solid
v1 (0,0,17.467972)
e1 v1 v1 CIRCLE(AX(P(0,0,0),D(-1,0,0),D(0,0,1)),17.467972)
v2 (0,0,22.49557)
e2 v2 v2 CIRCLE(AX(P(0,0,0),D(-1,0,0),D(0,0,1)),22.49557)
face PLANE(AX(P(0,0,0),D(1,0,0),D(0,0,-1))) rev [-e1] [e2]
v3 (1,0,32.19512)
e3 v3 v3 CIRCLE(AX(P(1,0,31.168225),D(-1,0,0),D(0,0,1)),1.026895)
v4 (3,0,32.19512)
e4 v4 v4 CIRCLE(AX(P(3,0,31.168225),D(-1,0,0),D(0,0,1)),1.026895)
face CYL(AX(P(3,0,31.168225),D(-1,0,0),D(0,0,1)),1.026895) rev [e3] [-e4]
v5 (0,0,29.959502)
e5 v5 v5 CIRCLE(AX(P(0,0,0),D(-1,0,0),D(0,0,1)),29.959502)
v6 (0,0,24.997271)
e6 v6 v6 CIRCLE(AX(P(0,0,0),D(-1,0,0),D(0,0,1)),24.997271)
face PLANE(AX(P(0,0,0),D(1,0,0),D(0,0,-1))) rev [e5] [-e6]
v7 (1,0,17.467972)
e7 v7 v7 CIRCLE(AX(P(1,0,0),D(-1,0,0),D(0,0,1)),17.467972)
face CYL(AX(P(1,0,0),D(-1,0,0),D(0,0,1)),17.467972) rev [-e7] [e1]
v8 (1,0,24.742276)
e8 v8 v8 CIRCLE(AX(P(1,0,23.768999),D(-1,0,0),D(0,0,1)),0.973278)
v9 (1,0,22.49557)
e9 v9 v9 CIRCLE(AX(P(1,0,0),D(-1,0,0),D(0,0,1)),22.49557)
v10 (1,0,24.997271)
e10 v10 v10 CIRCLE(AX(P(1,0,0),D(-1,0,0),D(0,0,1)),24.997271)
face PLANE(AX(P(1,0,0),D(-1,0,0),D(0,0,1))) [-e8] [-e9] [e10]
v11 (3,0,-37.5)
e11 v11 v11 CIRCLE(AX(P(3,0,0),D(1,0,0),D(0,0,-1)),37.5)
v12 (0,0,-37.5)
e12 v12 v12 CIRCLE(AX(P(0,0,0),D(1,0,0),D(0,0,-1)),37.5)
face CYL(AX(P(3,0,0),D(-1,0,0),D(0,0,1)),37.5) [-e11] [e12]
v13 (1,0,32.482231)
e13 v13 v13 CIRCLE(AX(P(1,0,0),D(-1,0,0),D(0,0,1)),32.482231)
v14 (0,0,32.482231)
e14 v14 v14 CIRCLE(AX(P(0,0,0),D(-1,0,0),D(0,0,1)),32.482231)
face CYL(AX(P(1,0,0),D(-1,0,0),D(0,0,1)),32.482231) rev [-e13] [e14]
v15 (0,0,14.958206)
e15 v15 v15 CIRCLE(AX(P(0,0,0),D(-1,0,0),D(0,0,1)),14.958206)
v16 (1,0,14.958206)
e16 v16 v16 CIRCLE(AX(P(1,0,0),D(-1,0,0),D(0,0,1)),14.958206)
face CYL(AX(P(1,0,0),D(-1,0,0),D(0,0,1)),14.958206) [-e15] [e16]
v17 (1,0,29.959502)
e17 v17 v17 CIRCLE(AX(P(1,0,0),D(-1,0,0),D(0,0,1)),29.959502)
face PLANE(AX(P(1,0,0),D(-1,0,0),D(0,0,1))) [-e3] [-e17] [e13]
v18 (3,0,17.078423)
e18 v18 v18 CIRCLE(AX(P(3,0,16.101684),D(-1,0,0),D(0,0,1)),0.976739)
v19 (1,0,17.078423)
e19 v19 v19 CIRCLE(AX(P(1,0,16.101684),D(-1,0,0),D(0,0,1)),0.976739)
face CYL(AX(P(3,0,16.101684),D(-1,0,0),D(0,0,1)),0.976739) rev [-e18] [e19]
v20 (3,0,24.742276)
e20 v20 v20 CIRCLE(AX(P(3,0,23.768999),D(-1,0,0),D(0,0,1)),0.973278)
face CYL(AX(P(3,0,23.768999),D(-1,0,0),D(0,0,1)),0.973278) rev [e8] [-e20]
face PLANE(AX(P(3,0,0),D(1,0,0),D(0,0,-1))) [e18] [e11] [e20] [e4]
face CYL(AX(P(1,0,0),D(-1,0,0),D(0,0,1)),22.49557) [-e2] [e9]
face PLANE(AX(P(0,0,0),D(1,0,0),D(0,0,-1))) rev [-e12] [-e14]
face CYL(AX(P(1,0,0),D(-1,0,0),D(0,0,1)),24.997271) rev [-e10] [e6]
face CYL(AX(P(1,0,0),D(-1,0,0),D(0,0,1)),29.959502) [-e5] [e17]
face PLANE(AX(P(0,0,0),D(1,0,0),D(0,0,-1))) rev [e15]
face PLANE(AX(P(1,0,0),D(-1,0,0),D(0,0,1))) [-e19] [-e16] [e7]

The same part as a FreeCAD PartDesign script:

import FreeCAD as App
import Part
import Sketcher

doc = App.newDocument("Part")
params = doc.addObject("Spreadsheet::Sheet", "Params")
for row, (alias, value) in enumerate([
    ("sketch1_diameter", "75 mm"),
    ("pad1_length", "3 mm"),
    ("pocket1_length", "1 mm"),
    ("pocket2_length", "3 mm"),
], start=1):
    params.set(f"A{row}", alias)
    params.set(f"B{row}", "=" + value)
    params.setAlias(f"B{row}", alias)

body = doc.addObject("PartDesign::Body", "Body")

# Sketch on YZ plane
sketch1 = body.newObject("Sketcher::SketchObject", "Sketch")
sketch1.AttachmentSupport = (doc.getObject("YZ_Plane"), [""])
sketch1.MapMode = "FlatFace"
sketch1.addGeometry(Part.Circle(App.Vector(0, 0, 0), App.Vector(0, 0, 1), 37.5), False)
sketch1.addConstraint([
    Sketcher.Constraint("Coincident", 0, 3, -1, 1),
    Sketcher.Constraint("Diameter", 0, 75.0),
])
sketch1.setExpression("Constraints[1]", "Params.sketch1_diameter")
pad1 = body.newObject("PartDesign::Pad", "Pad")
pad1.Profile = sketch1
pad1.setExpression("Length", "Params.pad1_length")

# Sketch on YZ plane
sketch2 = body.newObject("Sketcher::SketchObject", "Sketch001")
sketch2.AttachmentSupport = (doc.getObject("YZ_Plane"), [""])
sketch2.MapMode = "FlatFace"
sketch2.addGeometry([
    Part.Circle(App.Vector(0, 0, 0), App.Vector(0, 0, 1), 32.482231),  # 0
    Part.Circle(App.Vector(0, 0, 0), App.Vector(0, 0, 1), 29.959502),  # 1
    Part.Circle(App.Vector(0, 0, 0), App.Vector(0, 0, 1), 24.997271),  # 2
    Part.Circle(App.Vector(0, 0, 0), App.Vector(0, 0, 1), 22.49557),  # 3
    Part.Circle(App.Vector(0, 0, 0), App.Vector(0, 0, 1), 17.467972),  # 4
    Part.Circle(App.Vector(0, 0, 0), App.Vector(0, 0, 1), 14.958206),  # 5
], False)
sketch2.addConstraint([
    Sketcher.Constraint("Coincident", 0, 3, -1, 1),
    Sketcher.Constraint("Coincident", 1, 3, -1, 1),
    Sketcher.Constraint("Coincident", 2, 3, -1, 1),
    Sketcher.Constraint("Coincident", 3, 3, -1, 1),
    Sketcher.Constraint("Coincident", 4, 3, -1, 1),
    Sketcher.Constraint("Coincident", 5, 3, -1, 1),
    Sketcher.Constraint("Diameter", 0, 64.964461),
    Sketcher.Constraint("Diameter", 2, 49.994541),
    Sketcher.Constraint("Diameter", 3, 44.99114),
    Sketcher.Constraint("Diameter", 1, 59.919004),
    Sketcher.Constraint("Diameter", 4, 34.935944),
    Sketcher.Constraint("Diameter", 5, 29.916412),
])
pocket1 = body.newObject("PartDesign::Pocket", "Pocket")
pocket1.Profile = sketch2
pocket1.setExpression("Length", "Params.pocket1_length")
pocket1.Reversed = True

# Sketch on YZ plane
sketch3 = body.newObject("Sketcher::SketchObject", "Sketch002")
sketch3.AttachmentSupport = (doc.getObject("YZ_Plane"), [""])
sketch3.MapMode = "FlatFace"
sketch3.addGeometry([
    Part.Circle(App.Vector(0, 16.101684, 0), App.Vector(0, 0, 1), 0.976739),
    Part.Circle(App.Vector(0, 23.768999, 0), App.Vector(0, 0, 1), 0.973278),
    Part.Circle(App.Vector(0, 31.168225, 0), App.Vector(0, 0, 1), 1.026895),
], False)
sketch3.addConstraint([
    Sketcher.Constraint("PointOnObject", 0, 3, -2),
    Sketcher.Constraint("PointOnObject", 1, 3, -2),
    Sketcher.Constraint("PointOnObject", 2, 3, -2),
    Sketcher.Constraint("Diameter", 2, 2.05379),
    Sketcher.Constraint("Diameter", 0, 1.953478),
    Sketcher.Constraint("Diameter", 1, 1.946555),
    Sketcher.Constraint("DistanceY", -1, 1, 1, 3, 23.768999),
    Sketcher.Constraint("DistanceY", 0, 3, 2, 3, 15.066541),
    Sketcher.Constraint("DistanceY", -1, 1, 0, 3, 16.101684),
])
pocket2 = body.newObject("PartDesign::Pocket", "Pocket001")
pocket2.Profile = sketch3
pocket2.setExpression("Length", "Params.pocket2_length")
pocket2.Reversed = True

doc.recompute()
